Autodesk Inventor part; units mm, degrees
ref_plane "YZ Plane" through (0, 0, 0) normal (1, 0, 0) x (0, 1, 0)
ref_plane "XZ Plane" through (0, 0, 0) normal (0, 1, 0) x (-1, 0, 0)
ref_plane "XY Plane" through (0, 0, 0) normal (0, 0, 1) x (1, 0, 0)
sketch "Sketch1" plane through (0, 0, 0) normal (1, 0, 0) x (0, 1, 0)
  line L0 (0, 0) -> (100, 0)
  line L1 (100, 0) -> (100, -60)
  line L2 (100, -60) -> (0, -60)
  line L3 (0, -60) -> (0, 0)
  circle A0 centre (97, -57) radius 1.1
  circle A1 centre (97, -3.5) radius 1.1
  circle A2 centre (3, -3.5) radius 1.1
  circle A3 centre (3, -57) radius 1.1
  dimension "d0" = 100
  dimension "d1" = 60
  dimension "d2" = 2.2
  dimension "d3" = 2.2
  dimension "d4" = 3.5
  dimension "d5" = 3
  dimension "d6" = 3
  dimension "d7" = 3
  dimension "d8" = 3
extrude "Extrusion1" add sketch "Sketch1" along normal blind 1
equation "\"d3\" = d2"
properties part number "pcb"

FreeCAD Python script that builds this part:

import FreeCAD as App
import Part
import Sketcher
from FreeCAD import Vector


def add_polygon(sketch, points):
    """Adds a closed chain of lines whose ends are joined by coincident constraints."""
    first, n = sketch.GeometryCount, len(points)
    for a, b in zip(points, points[1:] + points[:1]):
        sketch.addGeometry(Part.LineSegment(App.Vector(*a, 0), App.Vector(*b, 0)), False)
    for i in range(n):
        sketch.addConstraint(Sketcher.Constraint("Coincident", first + i, 2, first + (i + 1) % n, 1))

doc = App.newDocument("Part")
body = doc.addObject("PartDesign::Body", "Body")

# Sketch on YZ plane
sketch1 = body.newObject("Sketcher::SketchObject", "Sketch")
sketch1.AttachmentSupport = (doc.getObject("YZ_Plane"), [""])
sketch1.MapMode = "FlatFace"
add_polygon(sketch1, [(100, 0), (0, 0), (0, -60), (100, -60)])  # lines 0-3
sketch1.addGeometry(Part.Circle(Vector(3, -57, 0), Vector(0, 0, 1), 1.1), False)  # 4
sketch1.addGeometry(Part.Circle(Vector(97, -57, 0), Vector(0, 0, 1), 1.1), False)  # 5
sketch1.addGeometry(Part.Circle(Vector(3, -3.5, 0), Vector(0, 0, 1), 1.1), False)  # 6
sketch1.addGeometry(Part.Circle(Vector(97, -3.5, 0), Vector(0, 0, 1), 1.1), False)  # 7
sketch1.addConstraint([
    Sketcher.Constraint("Horizontal", 0),
    Sketcher.Constraint("Vertical", 1),
    Sketcher.Constraint("Horizontal", 2),
    Sketcher.Constraint("Vertical", 3),
    Sketcher.Constraint("Coincident", 0, 2, -1, 1),
    Sketcher.Constraint("Equal", 4, 5),
    Sketcher.Constraint("Equal", 5, 6),
    Sketcher.Constraint("Equal", 6, 7),
    Sketcher.Constraint("Horizontal", 4, 3, 5, 3),
    Sketcher.Constraint("Horizontal", 6, 3, 7, 3),
    Sketcher.Constraint("Vertical", 4, 3, 6, 3),
    Sketcher.Constraint("Vertical", 5, 3, 7, 3),
    Sketcher.Constraint("Diameter", 4, 2.2),
    Sketcher.Constraint("DistanceX", 0, 2, 0, 1, 100.0),
    Sketcher.Constraint("DistanceY", 1, 2, 1, 1, 60.0),
    Sketcher.Constraint("DistanceX", -1, 1, 4, 3, 3.0),
    Sketcher.Constraint("DistanceY", 1, 2, 4, 3, 3.0),
    Sketcher.Constraint("DistanceX", 5, 3, 2, 2, 3.0),
    Sketcher.Constraint("DistanceY", 6, 3, -1, 1, 3.5),
])
pad1 = body.newObject("PartDesign::Pad", "Pad")
pad1.Profile = sketch1
pad1.Length = 1

doc.recompute()
